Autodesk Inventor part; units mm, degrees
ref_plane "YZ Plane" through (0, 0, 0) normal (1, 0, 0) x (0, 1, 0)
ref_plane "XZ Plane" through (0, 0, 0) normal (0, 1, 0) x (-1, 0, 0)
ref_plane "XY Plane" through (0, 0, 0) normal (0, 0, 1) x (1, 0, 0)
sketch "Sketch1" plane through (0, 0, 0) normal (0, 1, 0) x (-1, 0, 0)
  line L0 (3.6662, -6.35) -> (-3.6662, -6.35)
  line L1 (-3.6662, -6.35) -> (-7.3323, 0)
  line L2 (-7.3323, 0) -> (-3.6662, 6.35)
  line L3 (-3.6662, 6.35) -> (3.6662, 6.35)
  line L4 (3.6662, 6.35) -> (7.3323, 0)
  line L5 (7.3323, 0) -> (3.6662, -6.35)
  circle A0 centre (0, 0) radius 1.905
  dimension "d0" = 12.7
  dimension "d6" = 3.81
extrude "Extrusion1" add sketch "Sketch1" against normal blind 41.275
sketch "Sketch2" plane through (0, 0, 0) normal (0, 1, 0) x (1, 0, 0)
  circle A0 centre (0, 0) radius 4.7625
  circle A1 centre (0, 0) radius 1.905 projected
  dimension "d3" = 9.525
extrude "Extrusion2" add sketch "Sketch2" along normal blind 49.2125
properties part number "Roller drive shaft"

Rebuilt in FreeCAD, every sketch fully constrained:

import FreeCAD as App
import Part
import Sketcher
from FreeCAD import Vector
Q = App.Units.Quantity

doc = App.newDocument("Part")
body = doc.addObject("PartDesign::Body", "Body")

sketch1 = body.newObject("Sketcher::SketchObject", "Sketch")
sketch1.AttachmentSupport = (doc.getObject("XZ_Plane"), [""])
sketch1.MapMode = "FlatFace"
sketch1.addGeometry([
    Part.LineSegment(Vector(3.7, -6.3, 0), Vector(-3.7, -6.3, 0)),
    Part.LineSegment(Vector(-3.7, -6.3, 0), Vector(-7.3, 0, 0)),
    Part.LineSegment(Vector(-7.3, 0, 0), Vector(-3.7, 6.3, 0)),
    Part.LineSegment(Vector(-3.7, 6.3, 0), Vector(3.7, 6.3, 0)),
    Part.LineSegment(Vector(3.7, 6.3, 0), Vector(7.3, 0, 0)),
    Part.LineSegment(Vector(7.3, 0, 0), Vector(3.7, -6.3, 0)),
    Part.Circle(Vector(0, 0, 0), Vector(0, 0, 1), 1.9),
], False)
sketch1.addConstraint([
    Sketcher.Constraint("Coincident", 0, 2, 1, 1),
    Sketcher.Constraint("Coincident", 1, 2, 2, 1),
    Sketcher.Constraint("Coincident", 2, 2, 3, 1),
    Sketcher.Constraint("Coincident", 3, 2, 4, 1),
    Sketcher.Constraint("Coincident", 4, 2, 5, 1),
    Sketcher.Constraint("Coincident", 5, 2, 0, 1),
    Sketcher.Constraint("Horizontal", 0),
    Sketcher.Constraint("Horizontal", 3),
    Sketcher.Constraint("Coincident", 6, 3, -1, 1),
    Sketcher.Constraint("Symmetric", 0, 2, 3, 2, -1, 1),
    Sketcher.Constraint("Symmetric", 1, 2, 4, 2, -1, 1),
    Sketcher.Constraint("PointOnObject", 1, 2, -1),
    Sketcher.Constraint("Parallel", 2, 5),
    Sketcher.Constraint("Vertical", 0, 2, 2, 2),
    Sketcher.Constraint("Diameter", 6, Q("0.15 in")),
    Sketcher.Constraint("DistanceY", 0, 2, 2, 2, Q("0.5 in")),
    Sketcher.Constraint("Angle", 1, Q("119.9995 deg")),
    Sketcher.Constraint("DistanceX", 1, 2, 3, 2, Q("0.433 in")),
])
pad1 = body.newObject("PartDesign::Pad", "Pad")
pad1.Profile = sketch1
pad1.Length = Q("1.625 in")

sketch2 = body.newObject("Sketcher::SketchObject", "Sketch001")
sketch2.AttachmentSupport = (doc.getObject("XZ_Plane"), [""])
sketch2.MapMode = "FlatFace"
sketch2.addGeometry([
    Part.Circle(Vector(0, 0, 0), Vector(0, 0, 1), 4.8),
    Part.Circle(Vector(0, 0, 0), Vector(0, 0, 1), 1.9),
], False)
sketch2.addConstraint([
    Sketcher.Constraint("Coincident", 0, 3, -1, 1),
    Sketcher.Constraint("Coincident", 1, 3, -1, 1),
    Sketcher.Constraint("Diameter", 0, Q("0.375 in")),
    Sketcher.Constraint("Diameter", 1, Q("0.15 in")),
])
pad2 = body.newObject("PartDesign::Pad", "Pad001")
pad2.Profile = sketch2
pad2.Length = Q("1.9375 in")
pad2.Reversed = True

doc.recompute()
